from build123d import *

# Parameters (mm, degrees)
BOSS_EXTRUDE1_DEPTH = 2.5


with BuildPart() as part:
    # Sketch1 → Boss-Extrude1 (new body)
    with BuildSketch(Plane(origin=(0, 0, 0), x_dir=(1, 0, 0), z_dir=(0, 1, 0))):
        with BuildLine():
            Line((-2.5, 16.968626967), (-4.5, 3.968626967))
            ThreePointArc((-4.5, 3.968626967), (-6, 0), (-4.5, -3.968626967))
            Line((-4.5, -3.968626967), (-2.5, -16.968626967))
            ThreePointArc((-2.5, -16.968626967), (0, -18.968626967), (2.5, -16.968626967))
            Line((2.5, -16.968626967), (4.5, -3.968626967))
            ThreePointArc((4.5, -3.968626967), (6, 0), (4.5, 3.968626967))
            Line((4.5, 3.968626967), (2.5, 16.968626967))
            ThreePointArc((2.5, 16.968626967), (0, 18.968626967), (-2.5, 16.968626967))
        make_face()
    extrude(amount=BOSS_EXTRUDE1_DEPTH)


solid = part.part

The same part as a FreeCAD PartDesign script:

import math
import FreeCAD as App
import Part
import Sketcher
Q = App.Units.Quantity

doc = App.newDocument("Part")
body = doc.addObject("PartDesign::Body", "Body")

sketch1 = doc.addObject("Sketcher::SketchObject", "Sketch")
body.addObject(sketch1)
sketch1.AttachmentSupport = (doc.XZ_Plane, [""])
sketch1.MapMode = "FlatFace"
sketch1.addGeometry([
    Part.LineSegment(App.Vector(-2.5, -17, 0), App.Vector(-4.5, -4, 0)),
    Part.ArcOfCircle(Part.Circle(App.Vector(0, 0, 0), App.Vector(0, 0, 1), 6), math.radians(139), math.radians(221)),
    Part.LineSegment(App.Vector(-4.5, 4, 0), App.Vector(-2.5, 17, 0)),
    Part.ArcOfCircle(Part.Circle(App.Vector(0, 16.4, 0), App.Vector(0, 0, 1), 2.6), math.radians(13), math.radians(167)),
    Part.LineSegment(App.Vector(2.5, 17, 0), App.Vector(4.5, 4, 0)),
    Part.ArcOfCircle(Part.Circle(App.Vector(0, 0, 0), App.Vector(0, 0, 1), 6), math.radians(-41), math.radians(41)),
    Part.LineSegment(App.Vector(4.5, -4, 0), App.Vector(2.5, -17, 0)),
    Part.ArcOfCircle(Part.Circle(App.Vector(0, -16.4, 0), App.Vector(0, 0, 1), 2.6), math.radians(-167), math.radians(-13)),
], False)
sketch1.addConstraint([
    Sketcher.Constraint("Coincident", 0, 2, 1, 2),
    Sketcher.Constraint("Coincident", 1, 1, 2, 1),
    Sketcher.Constraint("Coincident", 2, 2, 3, 2),
    Sketcher.Constraint("Coincident", 3, 1, 4, 1),
    Sketcher.Constraint("Coincident", 4, 2, 5, 2),
    Sketcher.Constraint("Coincident", 5, 1, 6, 1),
    Sketcher.Constraint("Coincident", 6, 2, 7, 2),
    Sketcher.Constraint("Coincident", 7, 1, 0, 1),
    Sketcher.Constraint("Coincident", 1, 3, -1, 1),
    Sketcher.Constraint("Coincident", 5, 3, -1, 1),
    Sketcher.Constraint("Equal", 1, 5),
    Sketcher.Constraint("Equal", 3, 7),
    Sketcher.Constraint("Symmetric", 3, 3, 7, 3, -1, 1),
    Sketcher.Constraint("Symmetric", 2, 2, 3, 1, -2),
    Sketcher.Constraint("Parallel", 0, 4),
    Sketcher.Constraint("Parallel", 2, 6),
    Sketcher.Constraint("Horizontal", 1, 1, 4, 2),
    Sketcher.Constraint("Horizontal", 0, 2, 5, 1),
    Sketcher.Constraint("Vertical", 0, 2, 1, 1),
    Sketcher.Constraint("Radius", 1, Q("6 mm")),
    Sketcher.Constraint("DistanceX", 1, 1, 2, 2, Q("2 mm")),
    Sketcher.Constraint("DistanceY", 1, 1, 2, 2, Q("13 mm")),
    Sketcher.Constraint("DistanceX", 2, 2, 3, 1, Q("5 mm")),
    Sketcher.Constraint("Radius", 3, Q("2.5625 mm")),
])
pad1 = doc.addObject("PartDesign::Pad", "Pad")
body.addObject(pad1)
pad1.Profile = sketch1
pad1.Length = 2.5
pad1.Reversed = True

doc.recompute()
